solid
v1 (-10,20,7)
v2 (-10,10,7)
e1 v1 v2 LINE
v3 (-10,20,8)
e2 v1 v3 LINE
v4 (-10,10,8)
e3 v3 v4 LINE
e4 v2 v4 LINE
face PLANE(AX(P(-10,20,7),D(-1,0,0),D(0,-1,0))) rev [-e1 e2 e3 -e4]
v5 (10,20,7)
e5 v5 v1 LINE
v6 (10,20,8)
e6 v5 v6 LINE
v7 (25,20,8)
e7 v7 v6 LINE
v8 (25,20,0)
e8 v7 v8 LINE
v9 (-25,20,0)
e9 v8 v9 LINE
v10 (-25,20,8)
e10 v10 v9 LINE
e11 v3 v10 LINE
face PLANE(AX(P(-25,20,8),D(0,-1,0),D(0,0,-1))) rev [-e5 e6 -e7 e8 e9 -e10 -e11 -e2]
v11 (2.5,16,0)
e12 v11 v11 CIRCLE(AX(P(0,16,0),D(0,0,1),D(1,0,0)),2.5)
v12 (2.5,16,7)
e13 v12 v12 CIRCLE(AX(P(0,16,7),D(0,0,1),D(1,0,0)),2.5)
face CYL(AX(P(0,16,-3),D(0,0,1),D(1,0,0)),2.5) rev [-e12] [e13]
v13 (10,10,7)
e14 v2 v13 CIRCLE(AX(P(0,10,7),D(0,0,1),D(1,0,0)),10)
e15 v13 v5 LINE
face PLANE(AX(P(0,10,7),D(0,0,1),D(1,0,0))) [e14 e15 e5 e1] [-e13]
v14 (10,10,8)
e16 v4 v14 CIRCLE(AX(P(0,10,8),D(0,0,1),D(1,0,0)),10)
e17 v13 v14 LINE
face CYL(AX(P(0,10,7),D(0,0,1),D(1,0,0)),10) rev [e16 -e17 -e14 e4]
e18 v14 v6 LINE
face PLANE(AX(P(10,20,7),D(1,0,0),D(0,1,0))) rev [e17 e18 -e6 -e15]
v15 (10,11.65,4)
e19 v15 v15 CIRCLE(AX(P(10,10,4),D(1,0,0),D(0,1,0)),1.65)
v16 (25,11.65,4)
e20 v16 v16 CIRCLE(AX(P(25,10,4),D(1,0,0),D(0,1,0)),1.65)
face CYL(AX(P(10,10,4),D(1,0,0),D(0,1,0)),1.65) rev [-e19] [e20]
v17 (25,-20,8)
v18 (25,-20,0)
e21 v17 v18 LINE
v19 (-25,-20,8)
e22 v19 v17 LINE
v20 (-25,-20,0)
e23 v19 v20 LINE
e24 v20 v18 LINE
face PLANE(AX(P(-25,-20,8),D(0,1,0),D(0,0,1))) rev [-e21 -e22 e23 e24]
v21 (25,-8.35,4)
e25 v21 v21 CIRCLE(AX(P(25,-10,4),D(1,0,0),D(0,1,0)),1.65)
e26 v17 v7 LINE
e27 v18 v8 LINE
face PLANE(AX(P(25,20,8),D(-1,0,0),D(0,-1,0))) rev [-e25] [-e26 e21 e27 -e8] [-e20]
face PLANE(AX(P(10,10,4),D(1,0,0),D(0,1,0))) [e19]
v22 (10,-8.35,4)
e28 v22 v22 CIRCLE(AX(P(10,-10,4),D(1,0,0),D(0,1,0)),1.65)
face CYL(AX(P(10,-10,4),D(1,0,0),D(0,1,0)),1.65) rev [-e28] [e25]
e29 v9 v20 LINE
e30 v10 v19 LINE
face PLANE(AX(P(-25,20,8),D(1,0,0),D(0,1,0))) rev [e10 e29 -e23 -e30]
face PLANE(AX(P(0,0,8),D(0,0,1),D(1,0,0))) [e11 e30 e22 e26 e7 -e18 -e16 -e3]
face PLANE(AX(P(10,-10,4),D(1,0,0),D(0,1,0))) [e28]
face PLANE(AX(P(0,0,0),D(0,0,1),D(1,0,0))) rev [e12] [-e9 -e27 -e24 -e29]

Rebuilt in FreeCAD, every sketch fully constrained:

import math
import FreeCAD as App
import Part
import Sketcher
Q = App.Units.Quantity

doc = App.newDocument("Part")
params = doc.addObject("Spreadsheet::Sheet", "Params")
for row, (alias, value) in enumerate([
    ("sketch1_width", "50 mm"),
    ("sketch1_height", "40 mm"),
    ("pad1_length", "8 mm"),
    ("sketch2_diameter", "3.3 mm"),
    ("pocket1_length", "15 mm"),
    ("sketch3_radius", "10 mm"),
    ("sketch3_height", "10 mm"),
    ("pocket2_length", "1 mm"),
    ("sketch4_diameter", "5 mm"),
    ("pocket3_length", "10 mm"),
], start=1):
    params.set(f"A{row}", alias)
    params.set(f"B{row}", "=" + value)
    params.setAlias(f"B{row}", alias)

body = doc.addObject("PartDesign::Body", "Body")

sketch1 = body.newObject("Sketcher::SketchObject", "Sketch")
sketch1.AttachmentSupport = (doc.getObject("XY_Plane"), [""])
sketch1.MapMode = "FlatFace"
sketch1.addGeometry(Part.LineSegment(App.Vector(-25, 20, 0), App.Vector(-25, -20, 0)), False)
sketch1.addGeometry(Part.LineSegment(App.Vector(-25, -20, 0), App.Vector(25, -20, 0)), False)
sketch1.addGeometry(Part.LineSegment(App.Vector(25, -20, 0), App.Vector(25, 20, 0)), False)
sketch1.addGeometry(Part.LineSegment(App.Vector(25, 20, 0), App.Vector(-25, 20, 0)), False)
sketch1.addConstraint(Sketcher.Constraint("Coincident", 0, 2, 1, 1))
sketch1.addConstraint(Sketcher.Constraint("Coincident", 1, 2, 2, 1))
sketch1.addConstraint(Sketcher.Constraint("Coincident", 2, 2, 3, 1))
sketch1.addConstraint(Sketcher.Constraint("Coincident", 3, 2, 0, 1))
sketch1.addConstraint(Sketcher.Constraint("Vertical", 0))
sketch1.addConstraint(Sketcher.Constraint("Horizontal", 1))
sketch1.addConstraint(Sketcher.Constraint("Vertical", 2))
sketch1.addConstraint(Sketcher.Constraint("Horizontal", 3))
sketch1.addConstraint(Sketcher.Constraint("Symmetric", 0, 2, 2, 2, -1, 1))
sketch1.addConstraint(Sketcher.Constraint("DistanceX", 1, 1, 1, 2, Q("50 mm")))
sketch1.addConstraint(Sketcher.Constraint("DistanceY", 0, 2, 0, 1, Q("40 mm")))
sketch1.setExpression("Constraints[9]", "Params.sketch1_width")
sketch1.setExpression("Constraints[10]", "Params.sketch1_height")
pad1 = body.newObject("PartDesign::Pad", "Pad")
pad1.Profile = sketch1
pad1.setExpression("Length", "Params.pad1_length")

sketch2 = body.newObject("Sketcher::SketchObject", "Sketch001")
sketch2.AttachmentSupport = (doc.getObject("YZ_Plane"), [""])
sketch2.MapMode = "FlatFace"
sketch2.AttachmentOffset = App.Placement(App.Vector(0, 0, 25), App.Rotation())
sketch2.addGeometry(Part.Circle(App.Vector(10, 4, 0), App.Vector(0, 0, 1), 1.6), False)
sketch2.addGeometry(Part.Circle(App.Vector(-10, 4, 0), App.Vector(0, 0, 1), 1.6), False)
sketch2.addConstraint(Sketcher.Constraint("Equal", 0, 1))
sketch2.addConstraint(Sketcher.Constraint("Symmetric", 0, 3, 1, 3, -2))
sketch2.addConstraint(Sketcher.Constraint("Diameter", 0, Q("3.3 mm")))
sketch2.addConstraint(Sketcher.Constraint("DistanceX", -1, 1, 0, 3, Q("10 mm")))
sketch2.addConstraint(Sketcher.Constraint("DistanceY", -1, 1, 0, 3, Q("4 mm")))
sketch2.setExpression("Constraints[2]", "Params.sketch2_diameter")
pocket1 = body.newObject("PartDesign::Pocket", "Pocket")
pocket1.Profile = sketch2
pocket1.setExpression("Length", "Params.pocket1_length")

sketch3 = body.newObject("Sketcher::SketchObject", "Sketch002")
sketch3.AttachmentSupport = (doc.getObject("XY_Plane"), [""])
sketch3.MapMode = "FlatFace"
sketch3.AttachmentOffset = App.Placement(App.Vector(0, 0, 8), App.Rotation())
sketch3.addGeometry(Part.LineSegment(App.Vector(10, 20, 0), App.Vector(-10, 20, 0)), False)
sketch3.addGeometry(Part.LineSegment(App.Vector(-10, 20, 0), App.Vector(-10, 10, 0)), False)
sketch3.addGeometry(Part.ArcOfCircle(Part.Circle(App.Vector(0, 10, 0), App.Vector(0, 0, 1), 10), math.radians(180), math.radians(360)), False)
sketch3.addGeometry(Part.LineSegment(App.Vector(10, 10, 0), App.Vector(10, 20, 0)), False)
sketch3.addConstraint(Sketcher.Constraint("Coincident", 0, 2, 1, 1))
sketch3.addConstraint(Sketcher.Constraint("Tangent", 1, 2, 2, 1))
sketch3.addConstraint(Sketcher.Constraint("Tangent", 2, 2, 3, 1))
sketch3.addConstraint(Sketcher.Constraint("Coincident", 3, 2, 0, 1))
sketch3.addConstraint(Sketcher.Constraint("Horizontal", 0))
sketch3.addConstraint(Sketcher.Constraint("Vertical", 1))
sketch3.addConstraint(Sketcher.Constraint("Vertical", 3))
sketch3.addConstraint(Sketcher.Constraint("PointOnObject", 2, 3, -2))
sketch3.addConstraint(Sketcher.Constraint("Radius", 2, Q("10 mm")))
sketch3.addConstraint(Sketcher.Constraint("DistanceY", 1, 2, 1, 1, Q("10 mm")))
sketch3.addConstraint(Sketcher.Constraint("DistanceY", -1, 1, 2, 3, Q("10 mm")))
sketch3.setExpression("Constraints[8]", "Params.sketch3_radius")
sketch3.setExpression("Constraints[9]", "Params.sketch3_height")
pocket2 = body.newObject("PartDesign::Pocket", "Pocket001")
pocket2.Profile = sketch3
pocket2.setExpression("Length", "Params.pocket2_length")

sketch4 = body.newObject("Sketcher::SketchObject", "Sketch003")
sketch4.AttachmentSupport = (doc.getObject("XY_Plane"), [""])
sketch4.MapMode = "FlatFace"
sketch4.AttachmentOffset = App.Placement(App.Vector(0, 0, 7), App.Rotation())
sketch4.addGeometry(Part.Circle(App.Vector(0, 16, 0), App.Vector(0, 0, 1), 2.5), False)
sketch4.addConstraint(Sketcher.Constraint("PointOnObject", 0, 3, -2))
sketch4.addConstraint(Sketcher.Constraint("Diameter", 0, Q("5 mm")))
sketch4.addConstraint(Sketcher.Constraint("DistanceY", -1, 1, 0, 3, Q("16 mm")))
sketch4.setExpression("Constraints[1]", "Params.sketch4_diameter")
pocket3 = body.newObject("PartDesign::Pocket", "Pocket002")
pocket3.Profile = sketch4
pocket3.setExpression("Length", "Params.pocket3_length")

doc.recompute()
